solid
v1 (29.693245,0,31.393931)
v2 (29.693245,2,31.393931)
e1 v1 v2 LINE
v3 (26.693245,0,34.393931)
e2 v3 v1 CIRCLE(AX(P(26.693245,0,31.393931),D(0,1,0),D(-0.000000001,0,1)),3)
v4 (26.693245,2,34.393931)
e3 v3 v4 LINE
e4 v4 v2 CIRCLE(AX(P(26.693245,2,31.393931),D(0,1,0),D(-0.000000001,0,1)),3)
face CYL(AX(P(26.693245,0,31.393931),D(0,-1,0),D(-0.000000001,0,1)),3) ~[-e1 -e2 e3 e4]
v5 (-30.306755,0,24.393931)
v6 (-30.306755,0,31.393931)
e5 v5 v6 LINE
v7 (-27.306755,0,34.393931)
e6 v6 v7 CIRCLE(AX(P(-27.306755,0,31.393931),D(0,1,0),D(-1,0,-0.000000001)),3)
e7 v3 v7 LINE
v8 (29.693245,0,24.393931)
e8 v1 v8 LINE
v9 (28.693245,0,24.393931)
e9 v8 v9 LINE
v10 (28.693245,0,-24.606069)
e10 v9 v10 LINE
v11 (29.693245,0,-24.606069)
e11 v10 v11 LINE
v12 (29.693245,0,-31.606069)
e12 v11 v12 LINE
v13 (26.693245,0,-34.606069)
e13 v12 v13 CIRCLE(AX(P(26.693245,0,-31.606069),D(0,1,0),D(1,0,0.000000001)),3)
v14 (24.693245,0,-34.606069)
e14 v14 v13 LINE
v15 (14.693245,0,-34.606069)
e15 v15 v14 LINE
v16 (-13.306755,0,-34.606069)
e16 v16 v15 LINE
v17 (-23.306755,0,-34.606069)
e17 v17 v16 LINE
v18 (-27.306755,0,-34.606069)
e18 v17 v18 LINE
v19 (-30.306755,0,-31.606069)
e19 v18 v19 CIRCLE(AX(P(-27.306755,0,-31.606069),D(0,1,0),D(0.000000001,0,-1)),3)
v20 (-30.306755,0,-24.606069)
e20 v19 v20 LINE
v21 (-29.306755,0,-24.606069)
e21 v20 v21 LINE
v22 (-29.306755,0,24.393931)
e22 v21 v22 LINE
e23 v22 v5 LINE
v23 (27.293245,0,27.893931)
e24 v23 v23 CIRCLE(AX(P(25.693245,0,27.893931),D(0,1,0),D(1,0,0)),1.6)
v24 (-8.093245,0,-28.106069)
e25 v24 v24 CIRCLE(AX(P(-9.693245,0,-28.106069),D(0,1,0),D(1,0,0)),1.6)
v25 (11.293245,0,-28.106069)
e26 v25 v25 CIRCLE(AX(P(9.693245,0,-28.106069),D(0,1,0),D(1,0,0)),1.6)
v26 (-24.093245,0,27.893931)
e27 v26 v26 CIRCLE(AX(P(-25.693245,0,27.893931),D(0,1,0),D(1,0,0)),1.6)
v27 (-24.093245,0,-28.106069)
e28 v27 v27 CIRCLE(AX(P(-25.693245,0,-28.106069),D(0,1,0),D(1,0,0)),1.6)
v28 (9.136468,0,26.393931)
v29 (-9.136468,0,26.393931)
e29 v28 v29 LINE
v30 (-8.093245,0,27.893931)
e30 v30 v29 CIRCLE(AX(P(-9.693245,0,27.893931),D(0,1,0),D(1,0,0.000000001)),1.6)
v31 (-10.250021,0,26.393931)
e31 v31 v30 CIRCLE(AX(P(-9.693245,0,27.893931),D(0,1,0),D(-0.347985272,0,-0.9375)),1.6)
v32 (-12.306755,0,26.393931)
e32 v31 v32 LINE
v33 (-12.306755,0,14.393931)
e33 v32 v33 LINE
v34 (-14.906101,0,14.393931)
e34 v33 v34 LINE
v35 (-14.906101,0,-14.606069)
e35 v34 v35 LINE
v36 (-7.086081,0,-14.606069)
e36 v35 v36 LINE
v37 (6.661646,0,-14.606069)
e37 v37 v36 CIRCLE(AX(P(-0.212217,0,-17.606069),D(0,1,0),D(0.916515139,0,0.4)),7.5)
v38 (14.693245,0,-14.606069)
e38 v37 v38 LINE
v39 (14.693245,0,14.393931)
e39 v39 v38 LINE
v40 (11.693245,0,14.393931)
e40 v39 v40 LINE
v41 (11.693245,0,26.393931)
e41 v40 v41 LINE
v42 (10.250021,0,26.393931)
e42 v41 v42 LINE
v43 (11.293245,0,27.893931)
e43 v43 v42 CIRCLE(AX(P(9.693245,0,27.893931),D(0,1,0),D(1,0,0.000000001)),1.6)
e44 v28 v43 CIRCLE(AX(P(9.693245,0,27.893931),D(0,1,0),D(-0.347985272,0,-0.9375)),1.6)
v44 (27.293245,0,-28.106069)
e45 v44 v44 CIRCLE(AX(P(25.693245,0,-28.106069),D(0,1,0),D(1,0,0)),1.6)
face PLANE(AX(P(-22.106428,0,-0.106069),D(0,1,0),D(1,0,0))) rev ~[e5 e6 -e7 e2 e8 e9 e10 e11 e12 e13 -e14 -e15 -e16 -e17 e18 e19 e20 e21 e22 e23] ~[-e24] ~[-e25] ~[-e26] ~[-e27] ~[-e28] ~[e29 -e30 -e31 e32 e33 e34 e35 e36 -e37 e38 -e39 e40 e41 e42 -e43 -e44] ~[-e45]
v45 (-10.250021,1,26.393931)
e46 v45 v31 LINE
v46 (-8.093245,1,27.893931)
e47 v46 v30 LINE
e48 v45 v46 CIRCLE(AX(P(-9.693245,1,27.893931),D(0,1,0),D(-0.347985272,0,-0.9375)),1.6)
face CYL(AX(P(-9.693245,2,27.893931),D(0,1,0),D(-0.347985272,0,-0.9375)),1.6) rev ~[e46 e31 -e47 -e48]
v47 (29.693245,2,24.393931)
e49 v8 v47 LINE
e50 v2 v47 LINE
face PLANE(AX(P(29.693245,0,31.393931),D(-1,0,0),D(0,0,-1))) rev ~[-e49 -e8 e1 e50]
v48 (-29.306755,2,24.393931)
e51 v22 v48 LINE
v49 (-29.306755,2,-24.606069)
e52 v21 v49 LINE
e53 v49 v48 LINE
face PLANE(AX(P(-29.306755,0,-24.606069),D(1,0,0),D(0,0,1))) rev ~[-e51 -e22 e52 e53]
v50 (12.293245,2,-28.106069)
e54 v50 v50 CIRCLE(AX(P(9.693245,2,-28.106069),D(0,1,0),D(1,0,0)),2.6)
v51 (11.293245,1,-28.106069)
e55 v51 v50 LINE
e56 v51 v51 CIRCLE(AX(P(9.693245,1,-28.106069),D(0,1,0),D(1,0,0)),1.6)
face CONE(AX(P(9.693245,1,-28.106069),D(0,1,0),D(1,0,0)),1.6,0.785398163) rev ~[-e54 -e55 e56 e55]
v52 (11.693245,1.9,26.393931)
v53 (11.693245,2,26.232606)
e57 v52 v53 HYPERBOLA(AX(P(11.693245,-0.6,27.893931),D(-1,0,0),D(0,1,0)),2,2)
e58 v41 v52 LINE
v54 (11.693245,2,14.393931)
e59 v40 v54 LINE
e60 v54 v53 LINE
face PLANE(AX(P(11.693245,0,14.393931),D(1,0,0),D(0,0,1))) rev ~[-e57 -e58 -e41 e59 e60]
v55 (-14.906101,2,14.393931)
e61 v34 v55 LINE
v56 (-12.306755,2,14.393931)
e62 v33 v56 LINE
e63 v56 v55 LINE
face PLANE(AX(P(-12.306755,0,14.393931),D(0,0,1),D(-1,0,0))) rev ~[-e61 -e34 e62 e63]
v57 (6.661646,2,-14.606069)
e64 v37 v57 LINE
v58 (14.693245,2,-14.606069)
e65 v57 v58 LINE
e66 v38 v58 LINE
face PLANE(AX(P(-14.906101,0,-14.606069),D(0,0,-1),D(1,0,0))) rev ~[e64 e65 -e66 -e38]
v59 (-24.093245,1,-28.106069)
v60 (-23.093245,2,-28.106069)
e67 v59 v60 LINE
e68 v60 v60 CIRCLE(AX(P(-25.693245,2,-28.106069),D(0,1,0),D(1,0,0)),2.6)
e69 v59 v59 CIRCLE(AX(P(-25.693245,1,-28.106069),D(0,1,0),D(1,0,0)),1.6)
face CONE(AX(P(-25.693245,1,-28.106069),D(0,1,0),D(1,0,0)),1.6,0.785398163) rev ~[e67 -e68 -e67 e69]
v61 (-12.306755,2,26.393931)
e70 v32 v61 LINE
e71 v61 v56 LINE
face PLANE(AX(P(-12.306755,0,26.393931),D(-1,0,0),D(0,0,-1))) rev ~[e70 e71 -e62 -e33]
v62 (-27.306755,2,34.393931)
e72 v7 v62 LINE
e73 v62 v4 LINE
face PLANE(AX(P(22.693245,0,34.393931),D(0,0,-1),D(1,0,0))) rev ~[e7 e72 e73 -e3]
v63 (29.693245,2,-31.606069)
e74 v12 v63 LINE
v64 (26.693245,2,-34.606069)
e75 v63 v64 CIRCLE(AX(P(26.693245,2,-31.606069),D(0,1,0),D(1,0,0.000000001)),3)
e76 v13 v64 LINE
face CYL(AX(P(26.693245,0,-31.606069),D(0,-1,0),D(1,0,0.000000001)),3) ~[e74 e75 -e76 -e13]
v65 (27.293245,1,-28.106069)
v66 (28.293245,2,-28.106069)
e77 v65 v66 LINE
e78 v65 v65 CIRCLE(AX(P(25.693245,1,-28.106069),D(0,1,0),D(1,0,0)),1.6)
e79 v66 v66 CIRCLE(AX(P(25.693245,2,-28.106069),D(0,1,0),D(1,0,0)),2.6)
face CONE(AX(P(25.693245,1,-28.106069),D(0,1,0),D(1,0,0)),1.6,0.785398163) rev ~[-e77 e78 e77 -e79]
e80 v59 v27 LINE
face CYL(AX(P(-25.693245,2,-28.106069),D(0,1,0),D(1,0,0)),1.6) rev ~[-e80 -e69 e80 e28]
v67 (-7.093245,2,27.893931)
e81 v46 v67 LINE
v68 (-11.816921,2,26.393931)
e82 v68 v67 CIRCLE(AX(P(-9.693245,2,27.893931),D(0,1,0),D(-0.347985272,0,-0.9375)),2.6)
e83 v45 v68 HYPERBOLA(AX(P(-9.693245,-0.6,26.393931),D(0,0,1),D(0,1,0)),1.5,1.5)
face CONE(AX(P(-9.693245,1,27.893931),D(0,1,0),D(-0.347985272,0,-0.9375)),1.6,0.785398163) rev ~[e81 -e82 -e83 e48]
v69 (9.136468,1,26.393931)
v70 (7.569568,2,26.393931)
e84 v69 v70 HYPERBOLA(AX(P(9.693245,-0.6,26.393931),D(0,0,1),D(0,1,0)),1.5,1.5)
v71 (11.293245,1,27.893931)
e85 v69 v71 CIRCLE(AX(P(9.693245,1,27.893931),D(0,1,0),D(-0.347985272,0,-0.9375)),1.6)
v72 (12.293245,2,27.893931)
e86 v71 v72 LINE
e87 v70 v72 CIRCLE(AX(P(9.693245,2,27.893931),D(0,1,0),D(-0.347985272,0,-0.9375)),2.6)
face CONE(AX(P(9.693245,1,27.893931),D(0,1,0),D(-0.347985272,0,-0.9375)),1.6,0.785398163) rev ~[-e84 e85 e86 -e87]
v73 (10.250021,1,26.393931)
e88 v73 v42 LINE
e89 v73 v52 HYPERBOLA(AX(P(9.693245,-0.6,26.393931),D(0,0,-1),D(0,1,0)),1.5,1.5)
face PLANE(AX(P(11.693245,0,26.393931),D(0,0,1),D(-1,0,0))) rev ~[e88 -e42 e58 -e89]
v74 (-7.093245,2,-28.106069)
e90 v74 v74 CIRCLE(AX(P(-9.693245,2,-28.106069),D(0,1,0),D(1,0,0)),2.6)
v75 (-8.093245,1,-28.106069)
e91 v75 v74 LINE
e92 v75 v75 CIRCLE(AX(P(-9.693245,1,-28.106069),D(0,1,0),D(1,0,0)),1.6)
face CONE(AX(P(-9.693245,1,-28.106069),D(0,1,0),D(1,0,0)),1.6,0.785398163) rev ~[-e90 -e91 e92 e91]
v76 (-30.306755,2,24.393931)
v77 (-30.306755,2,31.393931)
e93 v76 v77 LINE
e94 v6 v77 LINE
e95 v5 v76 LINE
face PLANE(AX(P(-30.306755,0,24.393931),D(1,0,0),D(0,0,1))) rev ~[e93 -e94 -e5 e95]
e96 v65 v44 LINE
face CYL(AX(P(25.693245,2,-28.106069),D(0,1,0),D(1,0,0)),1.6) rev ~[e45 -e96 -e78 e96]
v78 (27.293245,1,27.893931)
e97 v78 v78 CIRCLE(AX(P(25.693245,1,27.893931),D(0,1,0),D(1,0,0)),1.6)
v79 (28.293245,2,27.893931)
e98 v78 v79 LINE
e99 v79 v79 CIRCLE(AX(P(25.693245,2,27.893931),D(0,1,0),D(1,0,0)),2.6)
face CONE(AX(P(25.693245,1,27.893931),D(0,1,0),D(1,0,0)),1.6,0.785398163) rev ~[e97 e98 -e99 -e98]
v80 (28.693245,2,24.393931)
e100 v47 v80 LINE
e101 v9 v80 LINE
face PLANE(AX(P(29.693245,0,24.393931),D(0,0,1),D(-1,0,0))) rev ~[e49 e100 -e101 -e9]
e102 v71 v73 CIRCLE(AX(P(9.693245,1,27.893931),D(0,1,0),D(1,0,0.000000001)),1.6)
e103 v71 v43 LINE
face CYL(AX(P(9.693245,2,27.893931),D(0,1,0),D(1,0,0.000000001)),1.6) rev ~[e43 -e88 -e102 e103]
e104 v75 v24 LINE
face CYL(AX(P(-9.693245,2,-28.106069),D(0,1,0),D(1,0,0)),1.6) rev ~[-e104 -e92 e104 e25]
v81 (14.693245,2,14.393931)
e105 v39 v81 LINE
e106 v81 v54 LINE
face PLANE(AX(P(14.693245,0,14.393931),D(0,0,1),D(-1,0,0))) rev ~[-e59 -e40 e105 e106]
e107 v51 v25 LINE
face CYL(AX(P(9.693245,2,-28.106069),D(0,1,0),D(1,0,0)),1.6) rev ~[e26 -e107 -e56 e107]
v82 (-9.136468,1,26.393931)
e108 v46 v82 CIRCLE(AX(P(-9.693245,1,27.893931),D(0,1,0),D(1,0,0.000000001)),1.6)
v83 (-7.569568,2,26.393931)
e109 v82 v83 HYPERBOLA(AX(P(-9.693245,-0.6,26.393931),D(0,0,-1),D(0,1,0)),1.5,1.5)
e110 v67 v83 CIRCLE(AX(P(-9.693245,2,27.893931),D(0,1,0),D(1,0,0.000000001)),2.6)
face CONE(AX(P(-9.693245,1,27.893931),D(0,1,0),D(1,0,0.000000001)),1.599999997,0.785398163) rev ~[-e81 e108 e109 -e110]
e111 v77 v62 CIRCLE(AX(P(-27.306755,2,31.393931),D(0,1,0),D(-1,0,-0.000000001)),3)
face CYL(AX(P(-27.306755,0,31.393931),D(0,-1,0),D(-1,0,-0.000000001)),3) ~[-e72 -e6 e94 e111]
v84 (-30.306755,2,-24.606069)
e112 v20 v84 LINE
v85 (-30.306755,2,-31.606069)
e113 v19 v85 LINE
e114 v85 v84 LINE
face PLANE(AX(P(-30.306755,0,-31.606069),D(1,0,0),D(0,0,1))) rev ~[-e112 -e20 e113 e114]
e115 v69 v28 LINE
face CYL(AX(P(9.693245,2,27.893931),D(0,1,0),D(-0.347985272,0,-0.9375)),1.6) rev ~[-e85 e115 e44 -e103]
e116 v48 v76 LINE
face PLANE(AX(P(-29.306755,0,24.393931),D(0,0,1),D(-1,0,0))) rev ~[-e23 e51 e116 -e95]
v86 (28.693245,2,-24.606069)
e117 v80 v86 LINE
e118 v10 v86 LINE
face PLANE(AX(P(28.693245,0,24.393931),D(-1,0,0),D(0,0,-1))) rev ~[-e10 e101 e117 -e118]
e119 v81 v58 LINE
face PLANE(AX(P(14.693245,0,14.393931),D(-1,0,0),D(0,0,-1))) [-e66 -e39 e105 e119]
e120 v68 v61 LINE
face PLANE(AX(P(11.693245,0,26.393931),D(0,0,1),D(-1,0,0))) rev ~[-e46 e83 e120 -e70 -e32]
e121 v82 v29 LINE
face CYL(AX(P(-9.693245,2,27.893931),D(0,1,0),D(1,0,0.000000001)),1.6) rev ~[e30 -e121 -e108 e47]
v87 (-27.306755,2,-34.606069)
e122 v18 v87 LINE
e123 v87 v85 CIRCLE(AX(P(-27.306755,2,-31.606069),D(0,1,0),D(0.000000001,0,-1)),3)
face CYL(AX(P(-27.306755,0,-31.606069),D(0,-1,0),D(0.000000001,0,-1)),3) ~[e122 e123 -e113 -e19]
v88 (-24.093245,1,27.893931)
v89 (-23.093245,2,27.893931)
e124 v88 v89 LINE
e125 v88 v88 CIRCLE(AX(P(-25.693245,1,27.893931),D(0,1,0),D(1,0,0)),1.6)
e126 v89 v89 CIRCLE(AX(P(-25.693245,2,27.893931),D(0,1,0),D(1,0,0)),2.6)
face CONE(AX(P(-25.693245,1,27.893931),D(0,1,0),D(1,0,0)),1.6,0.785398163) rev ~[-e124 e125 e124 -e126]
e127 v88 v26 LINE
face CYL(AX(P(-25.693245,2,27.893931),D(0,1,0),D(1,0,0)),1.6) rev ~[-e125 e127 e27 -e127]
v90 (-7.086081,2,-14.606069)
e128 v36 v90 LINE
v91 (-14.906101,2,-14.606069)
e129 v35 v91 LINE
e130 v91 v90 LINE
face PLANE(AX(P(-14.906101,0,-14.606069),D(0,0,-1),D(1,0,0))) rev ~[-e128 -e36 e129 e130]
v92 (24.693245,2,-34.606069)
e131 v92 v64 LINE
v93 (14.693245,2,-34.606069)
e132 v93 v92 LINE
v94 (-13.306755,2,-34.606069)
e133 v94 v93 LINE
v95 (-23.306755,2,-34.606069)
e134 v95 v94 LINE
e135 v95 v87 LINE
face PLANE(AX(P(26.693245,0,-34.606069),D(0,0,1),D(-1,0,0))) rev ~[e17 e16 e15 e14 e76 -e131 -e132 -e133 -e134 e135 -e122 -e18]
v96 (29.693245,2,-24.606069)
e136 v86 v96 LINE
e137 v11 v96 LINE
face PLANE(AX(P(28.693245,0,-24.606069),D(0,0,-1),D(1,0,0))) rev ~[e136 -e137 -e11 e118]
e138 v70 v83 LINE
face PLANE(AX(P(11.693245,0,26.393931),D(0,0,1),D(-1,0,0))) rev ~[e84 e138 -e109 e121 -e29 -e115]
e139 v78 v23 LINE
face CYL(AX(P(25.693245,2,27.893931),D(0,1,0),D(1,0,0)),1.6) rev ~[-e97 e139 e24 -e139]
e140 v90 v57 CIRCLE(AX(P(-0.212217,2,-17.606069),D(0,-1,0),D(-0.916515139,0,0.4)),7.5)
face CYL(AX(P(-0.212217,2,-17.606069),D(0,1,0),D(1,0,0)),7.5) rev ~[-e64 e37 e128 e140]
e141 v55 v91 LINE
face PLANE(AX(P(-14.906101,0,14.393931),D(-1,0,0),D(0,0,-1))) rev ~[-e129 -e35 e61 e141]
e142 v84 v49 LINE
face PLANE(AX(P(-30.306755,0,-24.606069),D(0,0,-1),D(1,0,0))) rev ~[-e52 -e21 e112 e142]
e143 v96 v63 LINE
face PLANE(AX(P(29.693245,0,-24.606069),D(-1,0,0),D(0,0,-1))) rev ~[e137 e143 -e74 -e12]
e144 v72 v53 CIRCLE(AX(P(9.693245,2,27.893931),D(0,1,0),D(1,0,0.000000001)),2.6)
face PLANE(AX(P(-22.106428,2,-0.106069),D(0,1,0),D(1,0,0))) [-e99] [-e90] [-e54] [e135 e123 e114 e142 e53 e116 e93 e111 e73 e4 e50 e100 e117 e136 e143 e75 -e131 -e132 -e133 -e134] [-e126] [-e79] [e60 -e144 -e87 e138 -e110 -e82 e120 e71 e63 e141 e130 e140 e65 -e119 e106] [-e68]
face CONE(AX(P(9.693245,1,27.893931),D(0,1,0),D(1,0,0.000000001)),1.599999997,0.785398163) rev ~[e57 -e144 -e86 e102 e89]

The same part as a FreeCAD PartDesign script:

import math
import FreeCAD as App
import Part
import Sketcher

V = App.Vector
Q = App.Units.Quantity


def edges_at(feature, points):
    """Names of the edges that pass closest to the given points."""
    edges = feature.Shape.Edges
    near = lambda p: min(range(len(edges)), key=lambda i: edges[i].distToShape(Part.Vertex(*p))[0])
    return sorted({f"Edge{near(p) + 1}" for p in points})


def add_polygon(sketch, points):
    """Adds a closed chain of lines whose ends are joined by coincident constraints."""
    first, n = sketch.GeometryCount, len(points)
    for a, b in zip(points, points[1:] + points[:1]):
        sketch.addGeometry(Part.LineSegment(App.Vector(*a, 0), App.Vector(*b, 0)), False)
    for i in range(n):
        sketch.addConstraint(Sketcher.Constraint("Coincident", first + i, 2, first + (i + 1) % n, 1))

doc = App.newDocument("Part")
params = doc.addObject("Spreadsheet::Sheet", "Params")
for row, (alias, value) in enumerate([
    ("sketch1_radius", "3 mm"),
    ("sketch1_diameter", "2.7 mm"),
    ("sketch1_width", "1 mm"),
    ("sketch1_width2", "2 mm"),
    ("sketch1_width3", "10 mm"),
    ("pad1_length", "2 mm"),
    ("sketch2_diameter", "15 mm"),
    ("pocket1_length", "2 mm"),
    ("pad2_length", "2 mm"),
    ("sketch4_diameter", "3.2 mm"),
    ("sketch4_height", "1.5 mm"),
    ("pocket2_length", "10 mm"),
    ("chamfer_size", "1 mm"),
    ("pad3_length", "2 mm"),
], start=1):
    params.set(f"A{row}", alias)
    params.set(f"B{row}", "=" + value)
    params.setAlias(f"B{row}", alias)

body = doc.addObject("PartDesign::Body", "Body")

# Sketch on XZ plane
sketch1 = body.newObject("Sketcher::SketchObject", "Sketch")
sketch1.AttachmentSupport = (doc.getObject("XZ_Plane"), [""])
sketch1.MapMode = "FlatFace"
sketch1.addGeometry(Part.LineSegment(V(-29.306755, 24.393931, 0), V(-30.306755, 24.393931, 0)), False)  # 0
sketch1.addGeometry(Part.LineSegment(V(-30.306755, 24.393931, 0), V(-30.306755, 31.393931, 0)), False)  # 1
sketch1.addGeometry(Part.ArcOfCircle(Part.Circle(V(-27.306755, 31.393931, 0), V(0, 0, 1), 3), math.radians(90), math.radians(180)), False)  # 2
sketch1.addGeometry(Part.LineSegment(V(-27.306755, 34.393931, 0), V(-25.306755, 34.393931, 0)), False)  # 3
sketch1.addGeometry(Part.LineSegment(V(-25.306755, 34.393931, 0), V(-25.306755, 32.393931, 0)), False)  # 4
sketch1.addGeometry(Part.LineSegment(V(-25.306755, 32.393931, 0), V(-15.306755, 32.393931, 0)), False)  # 5
sketch1.addGeometry(Part.LineSegment(V(-15.306755, 32.393931, 0), V(-15.306755, 34.393931, 0)), False)  # 6
sketch1.addGeometry(Part.LineSegment(V(-15.306755, 34.393931, 0), V(12.693245, 34.393931, 0)), False)  # 7
sketch1.addGeometry(Part.LineSegment(V(12.693245, 34.393931, 0), V(12.693245, 32.393931, 0)), False)  # 8
sketch1.addGeometry(Part.LineSegment(V(12.693245, 32.393931, 0), V(22.693245, 32.393931, 0)), False)  # 9
sketch1.addGeometry(Part.LineSegment(V(22.693245, 32.393931, 0), V(22.693245, 34.393931, 0)), False)  # 10
sketch1.addGeometry(Part.LineSegment(V(22.693245, 34.393931, 0), V(26.693245, 34.393931, 0)), False)  # 11
sketch1.addGeometry(Part.ArcOfCircle(Part.Circle(V(26.693245, 31.393931, 0), V(0, 0, 1), 3), math.radians(0), math.radians(90)), False)  # 12
sketch1.addGeometry(Part.LineSegment(V(29.693245, 31.393931, 0), V(29.693245, 24.393931, 0)), False)  # 13
sketch1.addGeometry(Part.LineSegment(V(29.693245, 24.393931, 0), V(28.693245, 24.393931, 0)), False)  # 14
sketch1.addGeometry(Part.LineSegment(V(28.693245, 24.393931, 0), V(28.693245, -24.606069, 0)), False)  # 15
sketch1.addGeometry(Part.LineSegment(V(28.693245, -24.606069, 0), V(29.693245, -24.606069, 0)), False)  # 16
sketch1.addGeometry(Part.LineSegment(V(29.693245, -24.606069, 0), V(29.693245, -31.606069, 0)), False)  # 17
sketch1.addGeometry(Part.ArcOfCircle(Part.Circle(V(26.693245, -31.606069, 0), V(0, 0, 1), 3), math.radians(-90), math.radians(0)), False)  # 18
sketch1.addGeometry(Part.LineSegment(V(26.693245, -34.606069, 0), V(24.693245, -34.606069, 0)), False)  # 19
sketch1.addGeometry(Part.LineSegment(V(24.693245, -34.606069, 0), V(24.693245, -32.606069, 0)), False)  # 20
sketch1.addGeometry(Part.LineSegment(V(24.693245, -32.606069, 0), V(14.693245, -32.606069, 0)), False)  # 21
sketch1.addGeometry(Part.LineSegment(V(14.693245, -32.606069, 0), V(14.693245, -34.606069, 0)), False)  # 22
sketch1.addGeometry(Part.LineSegment(V(14.693245, -34.606069, 0), V(-13.306755, -34.606069, 0)), False)  # 23
sketch1.addGeometry(Part.LineSegment(V(-13.306755, -34.606069, 0), V(-13.306755, -32.606069, 0)), False)  # 24
sketch1.addGeometry(Part.LineSegment(V(-13.306755, -32.606069, 0), V(-23.306755, -32.606069, 0)), False)  # 25
sketch1.addGeometry(Part.LineSegment(V(-23.306755, -32.606069, 0), V(-23.306755, -34.606069, 0)), False)  # 26
sketch1.addGeometry(Part.LineSegment(V(-23.306755, -34.606069, 0), V(-27.306755, -34.606069, 0)), False)  # 27
sketch1.addGeometry(Part.ArcOfCircle(Part.Circle(V(-27.306755, -31.606069, 0), V(0, 0, 1), 3), math.radians(180), math.radians(270)), False)  # 28
sketch1.addGeometry(Part.LineSegment(V(-30.306755, -31.606069, 0), V(-30.306755, -24.606069, 0)), False)  # 29
sketch1.addGeometry(Part.LineSegment(V(-30.306755, -24.606069, 0), V(-29.306755, -24.606069, 0)), False)  # 30
sketch1.addGeometry(Part.LineSegment(V(-29.306755, -24.606069, 0), V(-29.306755, 24.393931, 0)), False)  # 31
sketch1.addGeometry(Part.Circle(V(-20.982504, 22.393931, 0), V(0, 0, 1), 1.35), False)  # 32
sketch1.addGeometry(Part.Circle(V(-0.212217, 28.393931, 0), V(0, 0, 1), 1.35), False)  # 33
sketch1.addGeometry(Part.Circle(V(19.975773, 22.393931, 0), V(0, 0, 1), 1.35), False)  # 34
add_polygon(sketch1, [(-14.906101, 14.393931), (-14.906101, -14.606069), (14.693245, -14.606069), (14.693245, 14.393931), (11.693245, 14.393931), (11.693245, 26.393931), (-12.306755, 26.393931), (-12.306755, 14.393931)])  # lines 35-42
sketch1.addGeometry(Part.Circle(V(-20.982504, -22.606069, 0), V(0, 0, 1), 1.35), False)  # 43
sketch1.addGeometry(Part.Circle(V(-0.212217, -17.606069, 0), V(0, 0, 1), 1.35), False)  # 44
sketch1.addGeometry(Part.Circle(V(-0.212217, -28.606069, 0), V(0, 0, 1), 1.35), False)  # 45
sketch1.addGeometry(Part.Circle(V(19.975773, -22.606069, 0), V(0, 0, 1), 1.35), False)  # 46
sketch1.addConstraint([
    Sketcher.Constraint("Coincident", 0, 2, 1, 1),
    Sketcher.Constraint("Tangent", 1, 2, 2, 2),
    Sketcher.Constraint("Tangent", 2, 1, 3, 1),
    Sketcher.Constraint("Coincident", 3, 2, 4, 1),
    Sketcher.Constraint("Coincident", 4, 2, 5, 1),
    Sketcher.Constraint("Coincident", 5, 2, 6, 1),
    Sketcher.Constraint("Coincident", 6, 2, 7, 1),
    Sketcher.Constraint("Coincident", 7, 2, 8, 1),
    Sketcher.Constraint("Coincident", 8, 2, 9, 1),
    Sketcher.Constraint("Coincident", 9, 2, 10, 1),
    Sketcher.Constraint("Coincident", 10, 2, 11, 1),
    Sketcher.Constraint("Tangent", 11, 2, 12, 2),
    Sketcher.Constraint("Tangent", 12, 1, 13, 1),
    Sketcher.Constraint("Coincident", 13, 2, 14, 1),
    Sketcher.Constraint("Coincident", 14, 2, 15, 1),
    Sketcher.Constraint("Coincident", 15, 2, 16, 1),
    Sketcher.Constraint("Coincident", 16, 2, 17, 1),
    Sketcher.Constraint("Tangent", 17, 2, 18, 2),
    Sketcher.Constraint("Tangent", 18, 1, 19, 1),
    Sketcher.Constraint("Coincident", 19, 2, 20, 1),
    Sketcher.Constraint("Coincident", 20, 2, 21, 1),
    Sketcher.Constraint("Coincident", 21, 2, 22, 1),
    Sketcher.Constraint("Coincident", 22, 2, 23, 1),
    Sketcher.Constraint("Coincident", 23, 2, 24, 1),
    Sketcher.Constraint("Coincident", 24, 2, 25, 1),
    Sketcher.Constraint("Coincident", 25, 2, 26, 1),
    Sketcher.Constraint("Coincident", 26, 2, 27, 1),
    Sketcher.Constraint("Tangent", 27, 2, 28, 2),
    Sketcher.Constraint("Tangent", 28, 1, 29, 1),
    Sketcher.Constraint("Coincident", 29, 2, 30, 1),
    Sketcher.Constraint("Coincident", 30, 2, 31, 1),
    Sketcher.Constraint("Coincident", 31, 2, 0, 1),
    Sketcher.Constraint("Horizontal", 0),
    Sketcher.Constraint("Vertical", 1),
    Sketcher.Constraint("Horizontal", 3),
    Sketcher.Constraint("Vertical", 4),
    Sketcher.Constraint("Horizontal", 5),
    Sketcher.Constraint("Vertical", 6),
    Sketcher.Constraint("Horizontal", 7),
    Sketcher.Constraint("Vertical", 8),
    Sketcher.Constraint("Horizontal", 9),
    Sketcher.Constraint("Vertical", 10),
    Sketcher.Constraint("Horizontal", 11),
    Sketcher.Constraint("Vertical", 13),
    Sketcher.Constraint("Horizontal", 14),
    Sketcher.Constraint("Vertical", 15),
    Sketcher.Constraint("Horizontal", 16),
    Sketcher.Constraint("Vertical", 17),
    Sketcher.Constraint("Horizontal", 19),
    Sketcher.Constraint("Vertical", 20),
    Sketcher.Constraint("Horizontal", 21),
    Sketcher.Constraint("Vertical", 22),
    Sketcher.Constraint("Horizontal", 23),
    Sketcher.Constraint("Vertical", 24),
    Sketcher.Constraint("Horizontal", 25),
    Sketcher.Constraint("Vertical", 26),
    Sketcher.Constraint("Horizontal", 27),
    Sketcher.Constraint("Vertical", 29),
    Sketcher.Constraint("Horizontal", 30),
    Sketcher.Constraint("Vertical", 31),
    Sketcher.Constraint("Vertical", 35),
    Sketcher.Constraint("Horizontal", 36),
    Sketcher.Constraint("Vertical", 37),
    Sketcher.Constraint("Horizontal", 38),
    Sketcher.Constraint("Vertical", 39),
    Sketcher.Constraint("Horizontal", 40),
    Sketcher.Constraint("Vertical", 41),
    Sketcher.Constraint("Horizontal", 42),
    Sketcher.Constraint("Equal", 2, 12),
    Sketcher.Constraint("Equal", 12, 18),
    Sketcher.Constraint("Equal", 18, 28),
    Sketcher.Constraint("Equal", 32, 33),
    Sketcher.Constraint("Equal", 33, 34),
    Sketcher.Constraint("Equal", 34, 43),
    Sketcher.Constraint("Equal", 43, 44),
    Sketcher.Constraint("Equal", 44, 45),
    Sketcher.Constraint("Equal", 45, 46),
    Sketcher.Constraint("Horizontal", 2, 3, 12, 3),
    Sketcher.Constraint("Horizontal", 18, 3, 28, 3),
    Sketcher.Constraint("Horizontal", 32, 3, 34, 3),
    Sketcher.Constraint("Horizontal", 43, 3, 46, 3),
    Sketcher.Constraint("Horizontal", 3, 2, 6, 2),
    Sketcher.Constraint("Horizontal", 5, 2, 8, 2),
    Sketcher.Constraint("Horizontal", 0, 2, 13, 2),
    Sketcher.Constraint("Horizontal", 19, 2, 22, 2),
    Sketcher.Constraint("Horizontal", 21, 2, 24, 2),
    Sketcher.Constraint("Horizontal", 16, 2, 29, 2),
    Sketcher.Constraint("Horizontal", 38, 2, 41, 2),
    Sketcher.Constraint("Vertical", 12, 3, 18, 3),
    Sketcher.Constraint("Vertical", 2, 3, 28, 3),
    Sketcher.Constraint("Vertical", 32, 3, 43, 3),
    Sketcher.Constraint("Vertical", 33, 3, 44, 3),
    Sketcher.Constraint("Vertical", 44, 3, 45, 3),
    Sketcher.Constraint("Vertical", 34, 3, 46, 3),
    Sketcher.Constraint("Vertical", 22, 2, 36, 2),
    Sketcher.Constraint("Equal", 5, 9),
    Sketcher.Constraint("Equal", 0, 14),
    Sketcher.Constraint("Equal", 3, 19),
    Sketcher.Constraint("Equal", 9, 21),
    Sketcher.Constraint("Equal", 7, 23),
    Sketcher.Constraint("Equal", 21, 25),
    Sketcher.Constraint("Equal", 19, 4),
    Sketcher.Constraint("Equal", 13, 17),
    Sketcher.Constraint("Equal", 10, 20),
    Sketcher.Constraint("Radius", 2, Q("3 mm")),
    Sketcher.Constraint("Diameter", 32, Q("2.7 mm")),
    Sketcher.Constraint("DistanceX", 0, 2, 0, 1, Q("1 mm")),
    Sketcher.Constraint("DistanceX", 3, 1, 3, 2, Q("2 mm")),
    Sketcher.Constraint("DistanceX", 5, 1, 5, 2, Q("10 mm")),
    Sketcher.Constraint("DistanceX", 7, 1, 7, 2, Q("28 mm")),
    Sketcher.Constraint("DistanceX", 11, 1, 11, 2, Q("4 mm")),
    Sketcher.Constraint("DistanceX", 38, 2, 38, 1, Q("3 mm")),
    Sketcher.Constraint("DistanceX", 40, 2, 40, 1, Q("24 mm")),
    Sketcher.Constraint("DistanceY", 1, 1, 1, 2, Q("7 mm")),
    Sketcher.Constraint("DistanceY", 15, 2, 15, 1, Q("49 mm")),
    Sketcher.Constraint("DistanceY", 35, 2, 35, 1, Q("29 mm")),
    Sketcher.Constraint("DistanceY", 39, 1, 39, 2, Q("12 mm")),
    Sketcher.Constraint("DistanceY", 32, 3, 2, 3, Q("9 mm")),
    Sketcher.Constraint("DistanceY", 32, 3, 33, 3, Q("6 mm")),
    Sketcher.Constraint("DistanceY", 28, 3, 43, 3, Q("9 mm")),
    Sketcher.Constraint("DistanceY", 43, 3, 44, 3, Q("5 mm")),
    Sketcher.Constraint("DistanceY", 45, 3, 44, 3, Q("11 mm")),
    Sketcher.Constraint("DistanceY", 43, 3, 35, 2, Q("8 mm")),
    Sketcher.Constraint("DistanceX", 35, 2, -1, 1, Q("14.906101 mm")),
    Sketcher.Constraint("DistanceX", 36, 1, 36, 2, Q("29.599345 mm")),
    Sketcher.Constraint("DistanceY", -1, 1, 2, 3, Q("31.393931 mm")),
    Sketcher.Constraint("DistanceX", 2, 3, 32, 3, Q("6.324251 mm")),
    Sketcher.Constraint("DistanceX", 33, 3, 12, 3, Q("26.905462 mm")),
    Sketcher.Constraint("DistanceX", 34, 3, 12, 3, Q("6.717472 mm")),
])
sketch1.setExpression("Constraints[112]", "Params.sketch1_radius")
sketch1.setExpression("Constraints[113]", "Params.sketch1_diameter")
sketch1.setExpression("Constraints[114]", "Params.sketch1_width")
sketch1.setExpression("Constraints[115]", "Params.sketch1_width2")
sketch1.setExpression("Constraints[116]", "Params.sketch1_width3")
pad1 = body.newObject("PartDesign::Pad", "Pad")
pad1.Profile = sketch1
pad1.setExpression("Length", "Params.pad1_length")
pad1.Reversed = True

# Sketch on XZ plane
sketch2 = body.newObject("Sketcher::SketchObject", "Sketch001")
sketch2.AttachmentSupport = (doc.getObject("XZ_Plane"), [""])
sketch2.MapMode = "FlatFace"
sketch2.AttachmentOffset = App.Placement(V(0, 0, -2), App.Rotation())
sketch2.addGeometry(Part.Circle(V(-0.212217, -17.606069, 0), V(0, 0, 1), 7.5), False)
sketch2.addConstraint([
    Sketcher.Constraint("Diameter", 0, Q("15 mm")),
    Sketcher.Constraint("DistanceY", 0, 3, -1, 1, Q("17.606069 mm")),
    Sketcher.Constraint("DistanceX", 0, 3, -1, 1, Q("0.212217 mm")),
])
sketch2.setExpression("Constraints[0]", "Params.sketch2_diameter")
pocket1 = body.newObject("PartDesign::Pocket", "Pocket")
pocket1.Profile = sketch2
pocket1.setExpression("Length", "Params.pocket1_length")
pocket1.Reversed = True

# Sketch on XZ plane
sketch3 = body.newObject("Sketcher::SketchObject", "Sketch002")
sketch3.AttachmentSupport = (doc.getObject("XZ_Plane"), [""])
sketch3.MapMode = "FlatFace"
sketch3.AttachmentOffset = App.Placement(V(0, 0, -2), App.Rotation())
add_polygon(sketch3, [(-23.433488, -25.615111), (-23.433488, -20.044171), (-17.935849, -20.044171), (-17.935849, -25.615111)])  # lines 0-3
add_polygon(sketch3, [(-4.155102, -30.30643), (-4.155102, -26.494734), (5.007628, -26.494734), (5.007628, -30.30643)])  # lines 4-7
add_polygon(sketch3, [(16.369415, -25.028697), (16.369415, -18.871342), (22.819977, -18.871342), (22.819977, -25.028697)])  # lines 8-11
add_polygon(sketch3, [(17.249037, 19.392222), (17.249037, 23.936937), (22.819977, 23.936937), (22.819977, 19.392222)])  # lines 12-15
add_polygon(sketch3, [(-4.155102, 26.755341), (-4.155102, 30.411591), (2.123116, 30.411591), (2.123116, 26.755341)])  # lines 16-19
add_polygon(sketch3, [(-23.433488, 20.27709), (-23.433488, 24.45123), (-17.095481, 24.45123), (-17.095481, 20.27709)])  # lines 20-23
sketch3.addConstraint([
    Sketcher.Constraint("Vertical", 0),
    Sketcher.Constraint("Horizontal", 1),
    Sketcher.Constraint("Vertical", 2),
    Sketcher.Constraint("Horizontal", 3),
    Sketcher.Constraint("Vertical", 4),
    Sketcher.Constraint("Horizontal", 5),
    Sketcher.Constraint("Vertical", 6),
    Sketcher.Constraint("Horizontal", 7),
    Sketcher.Constraint("Vertical", 8),
    Sketcher.Constraint("Horizontal", 9),
    Sketcher.Constraint("Vertical", 10),
    Sketcher.Constraint("Horizontal", 11),
    Sketcher.Constraint("Vertical", 12),
    Sketcher.Constraint("Horizontal", 13),
    Sketcher.Constraint("Vertical", 14),
    Sketcher.Constraint("Horizontal", 15),
    Sketcher.Constraint("Vertical", 16),
    Sketcher.Constraint("Horizontal", 17),
    Sketcher.Constraint("Vertical", 18),
    Sketcher.Constraint("Horizontal", 19),
    Sketcher.Constraint("Vertical", 20),
    Sketcher.Constraint("Horizontal", 21),
    Sketcher.Constraint("Vertical", 22),
    Sketcher.Constraint("Horizontal", 23),
    Sketcher.Constraint("Vertical", 10, 2, 13, 2),
    Sketcher.Constraint("Vertical", 7, 2, 16, 2),
    Sketcher.Constraint("Vertical", 3, 2, 20, 2),
    Sketcher.Constraint("Equal", 15, 0),
    Sketcher.Constraint("DistanceX", 1, 1, 1, 2, Q("5.497638 mm")),
    Sketcher.Constraint("DistanceX", 5, 1, 5, 2, Q("9.162731 mm")),
    Sketcher.Constraint("DistanceX", 13, 1, 13, 2, Q("5.57094 mm")),
    Sketcher.Constraint("DistanceX", 17, 1, 17, 2, Q("6.278219 mm")),
    Sketcher.Constraint("DistanceY", 16, 1, 16, 2, Q("3.65625 mm")),
    Sketcher.Constraint("DistanceY", 20, 1, 20, 2, Q("4.174139 mm")),
    Sketcher.Constraint("DistanceY", 22, 2, 16, 2, Q("10.134501 mm")),
    Sketcher.Constraint("DistanceX", 9, 1, 9, 2, Q("6.450562 mm")),
    Sketcher.Constraint("DistanceX", 21, 1, 21, 2, Q("6.338006 mm")),
    Sketcher.Constraint("DistanceY", 4, 1, 4, 2, Q("3.811696 mm")),
    Sketcher.Constraint("DistanceY", 8, 1, 8, 2, Q("6.157355 mm")),
    Sketcher.Constraint("DistanceY", 12, 1, 12, 2, Q("4.544714 mm")),
    Sketcher.Constraint("DistanceY", 0, 2, -1, 1, Q("20.044171 mm")),
    Sketcher.Constraint("DistanceX", 1, 2, -1, 1, Q("17.935849 mm")),
    Sketcher.Constraint("DistanceX", -1, 1, 5, 2, Q("5.007628 mm")),
    Sketcher.Constraint("DistanceY", 6, 2, -1, 1, Q("30.30643 mm")),
    Sketcher.Constraint("DistanceY", 8, 2, -1, 1, Q("18.871342 mm")),
    Sketcher.Constraint("DistanceY", -1, 1, 16, 2, Q("30.411591 mm")),
    Sketcher.Constraint("DistanceX", 5, 2, 9, 2, Q("17.812349 mm")),
    Sketcher.Constraint("DistanceY", 8, 2, 12, 2, Q("42.808278 mm")),
])
pad2 = body.newObject("PartDesign::Pad", "Pad001")
pad2.Profile = sketch3
pad2.setExpression("Length", "Params.pad2_length")

# Sketch on XZ plane
sketch4 = body.newObject("Sketcher::SketchObject", "Sketch003")
sketch4.AttachmentSupport = (doc.getObject("XZ_Plane"), [""])
sketch4.MapMode = "FlatFace"
sketch4.AttachmentOffset = App.Placement(V(0, 0, -2), App.Rotation())
sketch4.addGeometry([
    Part.ArcOfCircle(Part.Circle(V(-9.693245, 27.893931, 0), V(0, 0, 1), 1.6), math.radians(-69.635865), math.radians(0)),  # 0
    Part.ArcOfCircle(Part.Circle(V(-9.693245, 27.893931, 0), V(0, 0, 1), 1.6), math.radians(-110.364135), math.radians(-69.635865)),  # 1
    Part.ArcOfCircle(Part.Circle(V(-9.693245, 27.893931, 0), V(0, 0, 1), 1.6), math.radians(0), math.radians(249.635865)),  # 2
    Part.Circle(V(-25.693245, 27.893931, 0), V(0, 0, 1), 1.6),  # 3
    Part.ArcOfCircle(Part.Circle(V(9.693245, 27.893931, 0), V(0, 0, 1), 1.6), math.radians(0), math.radians(249.635865)),  # 4
    Part.ArcOfCircle(Part.Circle(V(9.693245, 27.893931, 0), V(0, 0, 1), 1.6), math.radians(-69.635865), math.radians(0)),  # 5
    Part.ArcOfCircle(Part.Circle(V(9.693245, 27.893931, 0), V(0, 0, 1), 1.6), math.radians(-110.364135), math.radians(-69.635865)),  # 6
    Part.Circle(V(25.693245, 27.893931, 0), V(0, 0, 1), 1.6),  # 7
    Part.Circle(V(25.693245, -28.106069, 0), V(0, 0, 1), 1.6),  # 8
    Part.Circle(V(9.693245, -28.106069, 0), V(0, 0, 1), 1.6),  # 9
    Part.Circle(V(-9.693245, -28.106069, 0), V(0, 0, 1), 1.6),  # 10
    Part.Circle(V(-25.693245, -28.106069, 0), V(0, 0, 1), 1.6),  # 11
], False)
sketch4.addConstraint([
    Sketcher.Constraint("Tangent", 0, 1, 1, 2),
    Sketcher.Constraint("Tangent", 1, 1, 2, 2),
    Sketcher.Constraint("Tangent", 2, 1, 0, 2),
    Sketcher.Constraint("Tangent", 4, 1, 5, 2),
    Sketcher.Constraint("Tangent", 5, 1, 6, 2),
    Sketcher.Constraint("Tangent", 6, 1, 4, 2),
    Sketcher.Constraint("Equal", 2, 3),
    Sketcher.Constraint("Equal", 3, 4),
    Sketcher.Constraint("Equal", 6, 7),
    Sketcher.Constraint("Equal", 7, 8),
    Sketcher.Constraint("Equal", 8, 9),
    Sketcher.Constraint("Equal", 9, 10),
    Sketcher.Constraint("Equal", 10, 11),
    Sketcher.Constraint("Symmetric", 0, 3, 4, 3, -2),
    Sketcher.Constraint("Symmetric", 3, 3, 7, 3, -2),
    Sketcher.Constraint("Symmetric", 9, 3, 10, 3, -2),
    Sketcher.Constraint("Symmetric", 8, 3, 11, 3, -2),
    Sketcher.Constraint("Horizontal", 2, 3, 3, 3),
    Sketcher.Constraint("Horizontal", 8, 3, 9, 3),
    Sketcher.Constraint("Horizontal", 0, 1, 1, 1),
    Sketcher.Constraint("Horizontal", 7, 3, 2, 1),
    Sketcher.Constraint("Horizontal", 2, 1, 4, 1),
    Sketcher.Constraint("Horizontal", 1, 1, 5, 1),
    Sketcher.Constraint("Horizontal", 5, 1, 6, 1),
    Sketcher.Constraint("Vertical", 7, 3, 8, 3),
    Sketcher.Constraint("Vertical", 6, 3, 9, 3),
    Sketcher.Constraint("Diameter", 3, Q("3.2 mm")),
    Sketcher.Constraint("DistanceX", 3, 3, 1, 3, Q("16 mm")),
    Sketcher.Constraint("DistanceY", 8, 3, 7, 3, Q("56 mm")),
    Sketcher.Constraint("DistanceY", 0, 1, 0, 3, Q("1.5 mm")),
    Sketcher.Constraint("DistanceY", -1, 1, 0, 3, Q("27.893931 mm")),
    Sketcher.Constraint("DistanceX", 0, 1, -1, 1, Q("9.136468 mm")),
])
sketch4.setExpression("Constraints[26]", "Params.sketch4_diameter")
sketch4.setExpression("Constraints[29]", "Params.sketch4_height")
pocket2 = body.newObject("PartDesign::Pocket", "Pocket001")
pocket2.Profile = sketch4
pocket2.setExpression("Length", "Params.pocket2_length")
pocket2.Reversed = True
doc.recompute()

chamfer = body.newObject("PartDesign::Chamfer", "Chamfer")
chamfer.Base = (pocket2, edges_at(pocket2, [
    (-27.293, 2, 27.894),
    (8.78, 2, 29.207),
    (24.093, 2, 27.894),
    (24.093, 2, -28.106),
    (8.093, 2, -28.106),
    (-11.293, 2, -28.106),
    (-27.293, 2, -28.106),
    (-10.607, 2, 29.207),
]))
chamfer.setExpression("Size", "Params.chamfer_size")

# Sketch on XZ plane
sketch5 = body.newObject("Sketcher::SketchObject", "Sketch004")
sketch5.AttachmentSupport = (doc.getObject("XZ_Plane"), [""])
sketch5.MapMode = "FlatFace"
sketch5.AttachmentOffset = App.Placement(V(0, 0, -2), App.Rotation())
add_polygon(sketch5, [(14.693245, -34.606069), (14.693245, -32.335748), (25.506508, -32.335748), (25.506508, -34.606069)])  # lines 0-3
add_polygon(sketch5, [(-23.306755, -34.606069), (-23.306755, -32.022741), (-12.919943, -32.022741), (-12.919943, -34.606069)])  # lines 4-7
add_polygon(sketch5, [(-26.191309, 31.771053), (-26.191309, 34.393931), (-15.306755, 34.393931), (-15.306755, 31.771053)])  # lines 8-11
add_polygon(sketch5, [(10.641642, 31.071234), (10.641642, 34.393931), (22.693245, 34.393931), (22.693245, 31.071234)])  # lines 12-15
sketch5.addConstraint([
    Sketcher.Constraint("Vertical", 0),
    Sketcher.Constraint("Horizontal", 1),
    Sketcher.Constraint("Vertical", 2),
    Sketcher.Constraint("Horizontal", 3),
    Sketcher.Constraint("Vertical", 4),
    Sketcher.Constraint("Horizontal", 5),
    Sketcher.Constraint("Vertical", 6),
    Sketcher.Constraint("Horizontal", 7),
    Sketcher.Constraint("Vertical", 8),
    Sketcher.Constraint("Horizontal", 9),
    Sketcher.Constraint("Vertical", 10),
    Sketcher.Constraint("Horizontal", 11),
    Sketcher.Constraint("Vertical", 12),
    Sketcher.Constraint("Horizontal", 13),
    Sketcher.Constraint("Vertical", 14),
    Sketcher.Constraint("Horizontal", 15),
    Sketcher.Constraint("Horizontal", 3, 2, 6, 2),
    Sketcher.Constraint("Horizontal", 9, 2, 12, 2),
    Sketcher.Constraint("DistanceX", 4, 2, 0, 2, Q("38 mm")),
    Sketcher.Constraint("DistanceY", 7, 2, 8, 2, Q("69 mm")),
    Sketcher.Constraint("DistanceX", 4, 2, 9, 2, Q("8 mm")),
    Sketcher.Constraint("DistanceX", 9, 2, 13, 2, Q("38 mm")),
    Sketcher.Constraint("DistanceY", 0, 1, 0, 2, Q("2.270321 mm")),
    Sketcher.Constraint("DistanceX", 1, 1, 1, 2, Q("10.813264 mm")),
    Sketcher.Constraint("DistanceX", 5, 1, 5, 2, Q("10.386812 mm")),
    Sketcher.Constraint("DistanceX", 9, 1, 9, 2, Q("10.884554 mm")),
    Sketcher.Constraint("DistanceX", 13, 1, 13, 2, Q("12.051602 mm")),
    Sketcher.Constraint("DistanceY", 4, 1, 4, 2, Q("2.583328 mm")),
    Sketcher.Constraint("DistanceY", 8, 1, 8, 2, Q("2.622878 mm")),
    Sketcher.Constraint("DistanceY", 12, 1, 12, 2, Q("3.322697 mm")),
    Sketcher.Constraint("DistanceX", -1, 1, 1, 2, Q("25.506508 mm")),
    Sketcher.Constraint("DistanceY", 2, 2, -1, 1, Q("34.606069 mm")),
])
pad3 = body.newObject("PartDesign::Pad", "Pad002")
pad3.Profile = sketch5
pad3.setExpression("Length", "Params.pad3_length")

doc.recompute()
